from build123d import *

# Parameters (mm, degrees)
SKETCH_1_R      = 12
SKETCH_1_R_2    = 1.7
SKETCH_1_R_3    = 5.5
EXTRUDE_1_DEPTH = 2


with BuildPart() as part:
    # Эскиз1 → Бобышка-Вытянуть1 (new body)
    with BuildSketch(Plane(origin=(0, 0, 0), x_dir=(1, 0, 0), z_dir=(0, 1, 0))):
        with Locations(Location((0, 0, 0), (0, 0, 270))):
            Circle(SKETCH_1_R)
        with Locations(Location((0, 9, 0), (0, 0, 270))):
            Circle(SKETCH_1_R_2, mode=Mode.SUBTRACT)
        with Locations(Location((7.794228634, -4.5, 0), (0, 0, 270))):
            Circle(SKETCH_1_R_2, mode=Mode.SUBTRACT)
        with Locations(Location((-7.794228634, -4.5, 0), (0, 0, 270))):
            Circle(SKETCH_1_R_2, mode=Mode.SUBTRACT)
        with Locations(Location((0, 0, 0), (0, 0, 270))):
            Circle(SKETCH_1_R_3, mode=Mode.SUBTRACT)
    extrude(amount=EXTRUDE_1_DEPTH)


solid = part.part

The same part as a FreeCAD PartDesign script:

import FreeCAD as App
import Part
import Sketcher
from FreeCAD import Vector

doc = App.newDocument("Part")
params = doc.addObject("Spreadsheet::Sheet", "Params")
for row, (alias, value) in enumerate([
    ("sketch1_diameter", "24 mm"),
    ("sketch1_diameter2", "11 mm"),
    ("sketch1_diameter3", "3.4 mm"),
    ("pad1_length", "2 mm"),
], start=1):
    params.set(f"A{row}", alias)
    params.set(f"B{row}", "=" + value)
    params.setAlias(f"B{row}", alias)

body = doc.addObject("PartDesign::Body", "Body")

sketch1 = body.newObject("Sketcher::SketchObject", "Sketch")
sketch1.AttachmentSupport = (doc.getObject("XZ_Plane"), [""])
sketch1.MapMode = "FlatFace"
sketch1.addGeometry([
    Part.Circle(Vector(0, 0, 0), Vector(0, 0, 1), 12),
    Part.Circle(Vector(0, -9, 0), Vector(0, 0, 1), 1.7),
    Part.Circle(Vector(-7.8, 4.5, 0), Vector(0, 0, 1), 1.7),
    Part.Circle(Vector(0, 0, 0), Vector(0, 0, 1), 5.5),
    Part.Circle(Vector(7.8, 4.5, 0), Vector(0, 0, 1), 1.7),
], False)
sketch1.addConstraint([
    Sketcher.Constraint("Coincident", 0, 3, -1, 1),
    Sketcher.Constraint("Coincident", 3, 3, -1, 1),
    Sketcher.Constraint("Equal", 1, 2),
    Sketcher.Constraint("Equal", 2, 4),
    Sketcher.Constraint("Symmetric", 2, 3, 4, 3, -2),
    Sketcher.Constraint("PointOnObject", 1, 3, -2),
    Sketcher.Constraint("Diameter", 0, 24.0),
    Sketcher.Constraint("Diameter", 3, 11.0),
    Sketcher.Constraint("Diameter", 1, 3.4),
    Sketcher.Constraint("DistanceY", 1, 3, -1, 1, 9.0),
    Sketcher.Constraint("DistanceY", -1, 1, 2, 3, 4.5),
    Sketcher.Constraint("DistanceX", 2, 3, -1, 1, 7.794229),
])
sketch1.setExpression("Constraints[6]", "Params.sketch1_diameter")
sketch1.setExpression("Constraints[7]", "Params.sketch1_diameter2")
sketch1.setExpression("Constraints[8]", "Params.sketch1_diameter3")
pad1 = body.newObject("PartDesign::Pad", "Pad")
pad1.Profile = sketch1
pad1.setExpression("Length", "Params.pad1_length")
pad1.Reversed = True

doc.recompute()
